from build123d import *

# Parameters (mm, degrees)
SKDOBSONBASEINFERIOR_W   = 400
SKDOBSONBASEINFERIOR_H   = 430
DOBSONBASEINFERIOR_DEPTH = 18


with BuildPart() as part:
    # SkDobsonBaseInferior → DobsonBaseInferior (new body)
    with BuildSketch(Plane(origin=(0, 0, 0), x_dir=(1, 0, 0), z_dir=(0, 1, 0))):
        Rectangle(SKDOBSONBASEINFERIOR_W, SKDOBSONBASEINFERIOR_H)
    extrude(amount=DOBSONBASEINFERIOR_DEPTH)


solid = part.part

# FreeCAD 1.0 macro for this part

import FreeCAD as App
import Part
import Sketcher


def add_polygon(sketch, points):
    """Adds a closed chain of lines whose ends are joined by coincident constraints."""
    first, n = sketch.GeometryCount, len(points)
    for a, b in zip(points, points[1:] + points[:1]):
        sketch.addGeometry(Part.LineSegment(App.Vector(*a, 0), App.Vector(*b, 0)), False)
    for i in range(n):
        sketch.addConstraint(Sketcher.Constraint("Coincident", first + i, 2, first + (i + 1) % n, 1))

doc = App.newDocument("Part")
body = doc.addObject("PartDesign::Body", "Body")

# Sketch on XZ plane
sketch1 = body.newObject("Sketcher::SketchObject", "Sketch")
sketch1.AttachmentSupport = (doc.getObject("XZ_Plane"), [""])
sketch1.MapMode = "FlatFace"
add_polygon(sketch1, [(-200, -215), (-200, 215), (200, 215), (200, -215)])  # lines 0-3
sketch1.addConstraint([
    Sketcher.Constraint("Vertical", 0),
    Sketcher.Constraint("Horizontal", 1),
    Sketcher.Constraint("Vertical", 2),
    Sketcher.Constraint("Horizontal", 3),
    Sketcher.Constraint("Symmetric", 0, 2, 2, 2, -1, 1),
    Sketcher.Constraint("DistanceX", 1, 1, 1, 2, 400.0),
    Sketcher.Constraint("DistanceY", 0, 1, 0, 2, 430.0),
])
pad1 = body.newObject("PartDesign::Pad", "Pad")
pad1.Profile = sketch1
pad1.Length = 18
pad1.Reversed = True

doc.recompute()
